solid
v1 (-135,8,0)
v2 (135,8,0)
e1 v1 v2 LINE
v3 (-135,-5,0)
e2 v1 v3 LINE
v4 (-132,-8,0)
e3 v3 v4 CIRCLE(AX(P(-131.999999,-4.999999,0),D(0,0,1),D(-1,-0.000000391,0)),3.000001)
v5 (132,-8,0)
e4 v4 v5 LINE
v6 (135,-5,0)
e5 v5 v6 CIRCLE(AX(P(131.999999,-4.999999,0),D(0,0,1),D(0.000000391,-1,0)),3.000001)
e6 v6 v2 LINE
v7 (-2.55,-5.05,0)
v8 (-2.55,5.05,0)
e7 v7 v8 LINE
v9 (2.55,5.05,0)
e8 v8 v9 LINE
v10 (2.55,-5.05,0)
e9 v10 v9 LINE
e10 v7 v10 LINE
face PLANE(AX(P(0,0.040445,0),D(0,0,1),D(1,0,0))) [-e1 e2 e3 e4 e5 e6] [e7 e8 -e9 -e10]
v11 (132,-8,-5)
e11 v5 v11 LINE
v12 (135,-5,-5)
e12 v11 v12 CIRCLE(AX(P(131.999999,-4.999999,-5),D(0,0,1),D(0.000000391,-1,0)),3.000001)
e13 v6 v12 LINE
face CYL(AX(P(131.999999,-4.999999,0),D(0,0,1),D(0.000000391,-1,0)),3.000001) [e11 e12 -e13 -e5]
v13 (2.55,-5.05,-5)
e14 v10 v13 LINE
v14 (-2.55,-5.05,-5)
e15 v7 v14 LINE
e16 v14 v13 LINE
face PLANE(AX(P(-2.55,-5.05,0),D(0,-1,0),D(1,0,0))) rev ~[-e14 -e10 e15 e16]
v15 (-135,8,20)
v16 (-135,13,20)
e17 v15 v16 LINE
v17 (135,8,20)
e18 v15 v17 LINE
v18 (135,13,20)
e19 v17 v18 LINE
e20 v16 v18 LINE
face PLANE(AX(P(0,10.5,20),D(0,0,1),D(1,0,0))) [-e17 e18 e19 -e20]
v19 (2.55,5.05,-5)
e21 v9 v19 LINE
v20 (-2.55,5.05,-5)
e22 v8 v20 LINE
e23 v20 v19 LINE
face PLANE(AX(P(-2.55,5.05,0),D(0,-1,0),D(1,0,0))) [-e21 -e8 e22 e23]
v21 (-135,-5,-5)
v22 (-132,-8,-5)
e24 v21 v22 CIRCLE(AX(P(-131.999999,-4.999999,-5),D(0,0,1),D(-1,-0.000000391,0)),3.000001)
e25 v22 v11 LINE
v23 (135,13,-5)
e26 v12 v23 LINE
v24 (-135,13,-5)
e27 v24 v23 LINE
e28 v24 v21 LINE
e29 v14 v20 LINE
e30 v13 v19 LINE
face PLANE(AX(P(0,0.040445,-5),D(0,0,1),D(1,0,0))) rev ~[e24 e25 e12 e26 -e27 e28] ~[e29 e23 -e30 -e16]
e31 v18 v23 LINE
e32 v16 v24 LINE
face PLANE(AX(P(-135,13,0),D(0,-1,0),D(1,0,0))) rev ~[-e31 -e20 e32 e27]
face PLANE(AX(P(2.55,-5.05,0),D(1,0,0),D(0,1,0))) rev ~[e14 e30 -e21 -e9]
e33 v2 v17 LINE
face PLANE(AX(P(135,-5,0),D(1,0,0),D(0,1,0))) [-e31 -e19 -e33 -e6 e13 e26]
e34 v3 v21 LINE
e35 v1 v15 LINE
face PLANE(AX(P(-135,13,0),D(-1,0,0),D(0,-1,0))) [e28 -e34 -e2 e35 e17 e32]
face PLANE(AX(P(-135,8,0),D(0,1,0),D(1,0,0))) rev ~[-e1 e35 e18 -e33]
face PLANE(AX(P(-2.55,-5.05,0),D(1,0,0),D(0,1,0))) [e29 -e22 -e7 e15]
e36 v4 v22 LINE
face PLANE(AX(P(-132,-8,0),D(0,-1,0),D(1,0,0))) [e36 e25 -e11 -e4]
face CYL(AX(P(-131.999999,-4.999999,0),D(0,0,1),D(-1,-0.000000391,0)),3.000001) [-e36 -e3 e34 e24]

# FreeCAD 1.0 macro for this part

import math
import FreeCAD as App
import Part
import Sketcher

V = App.Vector

doc = App.newDocument("Part")
body = doc.addObject("PartDesign::Body", "Body")

# Sketch on XY plane
sketch1 = doc.addObject("Sketcher::SketchObject", "Sketch")
body.addObject(sketch1)
sketch1.AttachmentSupport = (doc.XY_Plane, [""])
sketch1.MapMode = "FlatFace"
sketch1.addGeometry(Part.LineSegment(V(-135, 13, 0), V(-135, 8, 0)), False)
sketch1.addGeometry(Part.LineSegment(V(-135, 8, 0), V(135, 8, 0)), False)
sketch1.addGeometry(Part.LineSegment(V(135, 8, 0), V(135, 13, 0)), False)
sketch1.addGeometry(Part.LineSegment(V(135, 13, 0), V(-135, 13, 0)), False)
sketch1.addConstraint(Sketcher.Constraint("Coincident", 0, 2, 1, 1))
sketch1.addConstraint(Sketcher.Constraint("Coincident", 1, 2, 2, 1))
sketch1.addConstraint(Sketcher.Constraint("Coincident", 2, 2, 3, 1))
sketch1.addConstraint(Sketcher.Constraint("Coincident", 3, 2, 0, 1))
sketch1.addConstraint(Sketcher.Constraint("Vertical", 0))
sketch1.addConstraint(Sketcher.Constraint("Horizontal", 1))
sketch1.addConstraint(Sketcher.Constraint("Vertical", 2))
sketch1.addConstraint(Sketcher.Constraint("Horizontal", 3))
sketch1.addConstraint(Sketcher.Constraint("DistanceX", 1, 1, 1, 2, 270.0))
sketch1.addConstraint(Sketcher.Constraint("DistanceY", 0, 2, 0, 1, 5.0))
sketch1.addConstraint(Sketcher.Constraint("DistanceX", 0, 2, -1, 1, 135.0))
sketch1.addConstraint(Sketcher.Constraint("DistanceY", -1, 1, 0, 2, 8.0))
pad1 = doc.addObject("PartDesign::Pad", "Pad")
body.addObject(pad1)
pad1.Profile = sketch1
pad1.Length = 20

# Sketch on XY plane
sketch2 = doc.addObject("Sketcher::SketchObject", "Sketch001")
body.addObject(sketch2)
sketch2.AttachmentSupport = (doc.XY_Plane, [""])
sketch2.MapMode = "FlatFace"
sketch2.addGeometry(Part.ArcOfCircle(Part.Circle(V(-132, -5, 0), V(0, 0, 1), 3), math.radians(-180), math.radians(-90)), False)
sketch2.addGeometry(Part.LineSegment(V(-132, -8, 0), V(132, -8, 0)), False)
sketch2.addGeometry(Part.ArcOfCircle(Part.Circle(V(132, -5, 0), V(0, 0, 1), 3), math.radians(-90), math.radians(0)), False)
sketch2.addGeometry(Part.LineSegment(V(135, -5, 0), V(135, 13, 0)), False)
sketch2.addGeometry(Part.LineSegment(V(135, 13, 0), V(-135, 13, 0)), False)
sketch2.addGeometry(Part.LineSegment(V(-135, 13, 0), V(-135, -5, 0)), False)
sketch2.addGeometry(Part.LineSegment(V(2.5, -5, 0), V(-2.5, -5, 0)), False)
sketch2.addGeometry(Part.LineSegment(V(-2.5, -5, 0), V(-2.5, 5, 0)), False)
sketch2.addGeometry(Part.LineSegment(V(-2.5, 5, 0), V(2.5, 5, 0)), False)
sketch2.addGeometry(Part.LineSegment(V(2.5, 5, 0), V(2.5, -5, 0)), False)
sketch2.addConstraint(Sketcher.Constraint("Tangent", 0, 2, 1, 1))
sketch2.addConstraint(Sketcher.Constraint("Tangent", 1, 2, 2, 1))
sketch2.addConstraint(Sketcher.Constraint("Tangent", 2, 2, 3, 1))
sketch2.addConstraint(Sketcher.Constraint("Coincident", 3, 2, 4, 1))
sketch2.addConstraint(Sketcher.Constraint("Coincident", 4, 2, 5, 1))
sketch2.addConstraint(Sketcher.Constraint("Tangent", 5, 2, 0, 1))
sketch2.addConstraint(Sketcher.Constraint("Coincident", 6, 2, 7, 1))
sketch2.addConstraint(Sketcher.Constraint("Coincident", 7, 2, 8, 1))
sketch2.addConstraint(Sketcher.Constraint("Coincident", 8, 2, 9, 1))
sketch2.addConstraint(Sketcher.Constraint("Coincident", 9, 2, 6, 1))
sketch2.addConstraint(Sketcher.Constraint("Horizontal", 1))
sketch2.addConstraint(Sketcher.Constraint("Vertical", 3))
sketch2.addConstraint(Sketcher.Constraint("Horizontal", 4))
sketch2.addConstraint(Sketcher.Constraint("Vertical", 5))
sketch2.addConstraint(Sketcher.Constraint("Horizontal", 6))
sketch2.addConstraint(Sketcher.Constraint("Vertical", 7))
sketch2.addConstraint(Sketcher.Constraint("Horizontal", 8))
sketch2.addConstraint(Sketcher.Constraint("Vertical", 9))
sketch2.addConstraint(Sketcher.Constraint("Equal", 0, 2))
sketch2.addConstraint(Sketcher.Constraint("Symmetric", 6, 2, 8, 2, -1, 1))
sketch2.addConstraint(Sketcher.Constraint("Radius", 0, 3.000001))
sketch2.addConstraint(Sketcher.Constraint("DistanceX", 1, 1, 1, 2, 264.0))
sketch2.addConstraint(Sketcher.Constraint("DistanceY", 3, 1, 3, 2, 18.0))
sketch2.addConstraint(Sketcher.Constraint("DistanceX", 6, 2, 6, 1, 5.1))
sketch2.addConstraint(Sketcher.Constraint("DistanceY", 7, 1, 7, 2, 10.1))
sketch2.addConstraint(Sketcher.Constraint("DistanceX", 0, 3, -1, 1, 131.999999))
sketch2.addConstraint(Sketcher.Constraint("DistanceY", 0, 3, -1, 1, 4.999999))
pad2 = doc.addObject("PartDesign::Pad", "Pad001")
body.addObject(pad2)
pad2.Profile = sketch2
pad2.Length = 5
pad2.Reversed = True

doc.recompute()
